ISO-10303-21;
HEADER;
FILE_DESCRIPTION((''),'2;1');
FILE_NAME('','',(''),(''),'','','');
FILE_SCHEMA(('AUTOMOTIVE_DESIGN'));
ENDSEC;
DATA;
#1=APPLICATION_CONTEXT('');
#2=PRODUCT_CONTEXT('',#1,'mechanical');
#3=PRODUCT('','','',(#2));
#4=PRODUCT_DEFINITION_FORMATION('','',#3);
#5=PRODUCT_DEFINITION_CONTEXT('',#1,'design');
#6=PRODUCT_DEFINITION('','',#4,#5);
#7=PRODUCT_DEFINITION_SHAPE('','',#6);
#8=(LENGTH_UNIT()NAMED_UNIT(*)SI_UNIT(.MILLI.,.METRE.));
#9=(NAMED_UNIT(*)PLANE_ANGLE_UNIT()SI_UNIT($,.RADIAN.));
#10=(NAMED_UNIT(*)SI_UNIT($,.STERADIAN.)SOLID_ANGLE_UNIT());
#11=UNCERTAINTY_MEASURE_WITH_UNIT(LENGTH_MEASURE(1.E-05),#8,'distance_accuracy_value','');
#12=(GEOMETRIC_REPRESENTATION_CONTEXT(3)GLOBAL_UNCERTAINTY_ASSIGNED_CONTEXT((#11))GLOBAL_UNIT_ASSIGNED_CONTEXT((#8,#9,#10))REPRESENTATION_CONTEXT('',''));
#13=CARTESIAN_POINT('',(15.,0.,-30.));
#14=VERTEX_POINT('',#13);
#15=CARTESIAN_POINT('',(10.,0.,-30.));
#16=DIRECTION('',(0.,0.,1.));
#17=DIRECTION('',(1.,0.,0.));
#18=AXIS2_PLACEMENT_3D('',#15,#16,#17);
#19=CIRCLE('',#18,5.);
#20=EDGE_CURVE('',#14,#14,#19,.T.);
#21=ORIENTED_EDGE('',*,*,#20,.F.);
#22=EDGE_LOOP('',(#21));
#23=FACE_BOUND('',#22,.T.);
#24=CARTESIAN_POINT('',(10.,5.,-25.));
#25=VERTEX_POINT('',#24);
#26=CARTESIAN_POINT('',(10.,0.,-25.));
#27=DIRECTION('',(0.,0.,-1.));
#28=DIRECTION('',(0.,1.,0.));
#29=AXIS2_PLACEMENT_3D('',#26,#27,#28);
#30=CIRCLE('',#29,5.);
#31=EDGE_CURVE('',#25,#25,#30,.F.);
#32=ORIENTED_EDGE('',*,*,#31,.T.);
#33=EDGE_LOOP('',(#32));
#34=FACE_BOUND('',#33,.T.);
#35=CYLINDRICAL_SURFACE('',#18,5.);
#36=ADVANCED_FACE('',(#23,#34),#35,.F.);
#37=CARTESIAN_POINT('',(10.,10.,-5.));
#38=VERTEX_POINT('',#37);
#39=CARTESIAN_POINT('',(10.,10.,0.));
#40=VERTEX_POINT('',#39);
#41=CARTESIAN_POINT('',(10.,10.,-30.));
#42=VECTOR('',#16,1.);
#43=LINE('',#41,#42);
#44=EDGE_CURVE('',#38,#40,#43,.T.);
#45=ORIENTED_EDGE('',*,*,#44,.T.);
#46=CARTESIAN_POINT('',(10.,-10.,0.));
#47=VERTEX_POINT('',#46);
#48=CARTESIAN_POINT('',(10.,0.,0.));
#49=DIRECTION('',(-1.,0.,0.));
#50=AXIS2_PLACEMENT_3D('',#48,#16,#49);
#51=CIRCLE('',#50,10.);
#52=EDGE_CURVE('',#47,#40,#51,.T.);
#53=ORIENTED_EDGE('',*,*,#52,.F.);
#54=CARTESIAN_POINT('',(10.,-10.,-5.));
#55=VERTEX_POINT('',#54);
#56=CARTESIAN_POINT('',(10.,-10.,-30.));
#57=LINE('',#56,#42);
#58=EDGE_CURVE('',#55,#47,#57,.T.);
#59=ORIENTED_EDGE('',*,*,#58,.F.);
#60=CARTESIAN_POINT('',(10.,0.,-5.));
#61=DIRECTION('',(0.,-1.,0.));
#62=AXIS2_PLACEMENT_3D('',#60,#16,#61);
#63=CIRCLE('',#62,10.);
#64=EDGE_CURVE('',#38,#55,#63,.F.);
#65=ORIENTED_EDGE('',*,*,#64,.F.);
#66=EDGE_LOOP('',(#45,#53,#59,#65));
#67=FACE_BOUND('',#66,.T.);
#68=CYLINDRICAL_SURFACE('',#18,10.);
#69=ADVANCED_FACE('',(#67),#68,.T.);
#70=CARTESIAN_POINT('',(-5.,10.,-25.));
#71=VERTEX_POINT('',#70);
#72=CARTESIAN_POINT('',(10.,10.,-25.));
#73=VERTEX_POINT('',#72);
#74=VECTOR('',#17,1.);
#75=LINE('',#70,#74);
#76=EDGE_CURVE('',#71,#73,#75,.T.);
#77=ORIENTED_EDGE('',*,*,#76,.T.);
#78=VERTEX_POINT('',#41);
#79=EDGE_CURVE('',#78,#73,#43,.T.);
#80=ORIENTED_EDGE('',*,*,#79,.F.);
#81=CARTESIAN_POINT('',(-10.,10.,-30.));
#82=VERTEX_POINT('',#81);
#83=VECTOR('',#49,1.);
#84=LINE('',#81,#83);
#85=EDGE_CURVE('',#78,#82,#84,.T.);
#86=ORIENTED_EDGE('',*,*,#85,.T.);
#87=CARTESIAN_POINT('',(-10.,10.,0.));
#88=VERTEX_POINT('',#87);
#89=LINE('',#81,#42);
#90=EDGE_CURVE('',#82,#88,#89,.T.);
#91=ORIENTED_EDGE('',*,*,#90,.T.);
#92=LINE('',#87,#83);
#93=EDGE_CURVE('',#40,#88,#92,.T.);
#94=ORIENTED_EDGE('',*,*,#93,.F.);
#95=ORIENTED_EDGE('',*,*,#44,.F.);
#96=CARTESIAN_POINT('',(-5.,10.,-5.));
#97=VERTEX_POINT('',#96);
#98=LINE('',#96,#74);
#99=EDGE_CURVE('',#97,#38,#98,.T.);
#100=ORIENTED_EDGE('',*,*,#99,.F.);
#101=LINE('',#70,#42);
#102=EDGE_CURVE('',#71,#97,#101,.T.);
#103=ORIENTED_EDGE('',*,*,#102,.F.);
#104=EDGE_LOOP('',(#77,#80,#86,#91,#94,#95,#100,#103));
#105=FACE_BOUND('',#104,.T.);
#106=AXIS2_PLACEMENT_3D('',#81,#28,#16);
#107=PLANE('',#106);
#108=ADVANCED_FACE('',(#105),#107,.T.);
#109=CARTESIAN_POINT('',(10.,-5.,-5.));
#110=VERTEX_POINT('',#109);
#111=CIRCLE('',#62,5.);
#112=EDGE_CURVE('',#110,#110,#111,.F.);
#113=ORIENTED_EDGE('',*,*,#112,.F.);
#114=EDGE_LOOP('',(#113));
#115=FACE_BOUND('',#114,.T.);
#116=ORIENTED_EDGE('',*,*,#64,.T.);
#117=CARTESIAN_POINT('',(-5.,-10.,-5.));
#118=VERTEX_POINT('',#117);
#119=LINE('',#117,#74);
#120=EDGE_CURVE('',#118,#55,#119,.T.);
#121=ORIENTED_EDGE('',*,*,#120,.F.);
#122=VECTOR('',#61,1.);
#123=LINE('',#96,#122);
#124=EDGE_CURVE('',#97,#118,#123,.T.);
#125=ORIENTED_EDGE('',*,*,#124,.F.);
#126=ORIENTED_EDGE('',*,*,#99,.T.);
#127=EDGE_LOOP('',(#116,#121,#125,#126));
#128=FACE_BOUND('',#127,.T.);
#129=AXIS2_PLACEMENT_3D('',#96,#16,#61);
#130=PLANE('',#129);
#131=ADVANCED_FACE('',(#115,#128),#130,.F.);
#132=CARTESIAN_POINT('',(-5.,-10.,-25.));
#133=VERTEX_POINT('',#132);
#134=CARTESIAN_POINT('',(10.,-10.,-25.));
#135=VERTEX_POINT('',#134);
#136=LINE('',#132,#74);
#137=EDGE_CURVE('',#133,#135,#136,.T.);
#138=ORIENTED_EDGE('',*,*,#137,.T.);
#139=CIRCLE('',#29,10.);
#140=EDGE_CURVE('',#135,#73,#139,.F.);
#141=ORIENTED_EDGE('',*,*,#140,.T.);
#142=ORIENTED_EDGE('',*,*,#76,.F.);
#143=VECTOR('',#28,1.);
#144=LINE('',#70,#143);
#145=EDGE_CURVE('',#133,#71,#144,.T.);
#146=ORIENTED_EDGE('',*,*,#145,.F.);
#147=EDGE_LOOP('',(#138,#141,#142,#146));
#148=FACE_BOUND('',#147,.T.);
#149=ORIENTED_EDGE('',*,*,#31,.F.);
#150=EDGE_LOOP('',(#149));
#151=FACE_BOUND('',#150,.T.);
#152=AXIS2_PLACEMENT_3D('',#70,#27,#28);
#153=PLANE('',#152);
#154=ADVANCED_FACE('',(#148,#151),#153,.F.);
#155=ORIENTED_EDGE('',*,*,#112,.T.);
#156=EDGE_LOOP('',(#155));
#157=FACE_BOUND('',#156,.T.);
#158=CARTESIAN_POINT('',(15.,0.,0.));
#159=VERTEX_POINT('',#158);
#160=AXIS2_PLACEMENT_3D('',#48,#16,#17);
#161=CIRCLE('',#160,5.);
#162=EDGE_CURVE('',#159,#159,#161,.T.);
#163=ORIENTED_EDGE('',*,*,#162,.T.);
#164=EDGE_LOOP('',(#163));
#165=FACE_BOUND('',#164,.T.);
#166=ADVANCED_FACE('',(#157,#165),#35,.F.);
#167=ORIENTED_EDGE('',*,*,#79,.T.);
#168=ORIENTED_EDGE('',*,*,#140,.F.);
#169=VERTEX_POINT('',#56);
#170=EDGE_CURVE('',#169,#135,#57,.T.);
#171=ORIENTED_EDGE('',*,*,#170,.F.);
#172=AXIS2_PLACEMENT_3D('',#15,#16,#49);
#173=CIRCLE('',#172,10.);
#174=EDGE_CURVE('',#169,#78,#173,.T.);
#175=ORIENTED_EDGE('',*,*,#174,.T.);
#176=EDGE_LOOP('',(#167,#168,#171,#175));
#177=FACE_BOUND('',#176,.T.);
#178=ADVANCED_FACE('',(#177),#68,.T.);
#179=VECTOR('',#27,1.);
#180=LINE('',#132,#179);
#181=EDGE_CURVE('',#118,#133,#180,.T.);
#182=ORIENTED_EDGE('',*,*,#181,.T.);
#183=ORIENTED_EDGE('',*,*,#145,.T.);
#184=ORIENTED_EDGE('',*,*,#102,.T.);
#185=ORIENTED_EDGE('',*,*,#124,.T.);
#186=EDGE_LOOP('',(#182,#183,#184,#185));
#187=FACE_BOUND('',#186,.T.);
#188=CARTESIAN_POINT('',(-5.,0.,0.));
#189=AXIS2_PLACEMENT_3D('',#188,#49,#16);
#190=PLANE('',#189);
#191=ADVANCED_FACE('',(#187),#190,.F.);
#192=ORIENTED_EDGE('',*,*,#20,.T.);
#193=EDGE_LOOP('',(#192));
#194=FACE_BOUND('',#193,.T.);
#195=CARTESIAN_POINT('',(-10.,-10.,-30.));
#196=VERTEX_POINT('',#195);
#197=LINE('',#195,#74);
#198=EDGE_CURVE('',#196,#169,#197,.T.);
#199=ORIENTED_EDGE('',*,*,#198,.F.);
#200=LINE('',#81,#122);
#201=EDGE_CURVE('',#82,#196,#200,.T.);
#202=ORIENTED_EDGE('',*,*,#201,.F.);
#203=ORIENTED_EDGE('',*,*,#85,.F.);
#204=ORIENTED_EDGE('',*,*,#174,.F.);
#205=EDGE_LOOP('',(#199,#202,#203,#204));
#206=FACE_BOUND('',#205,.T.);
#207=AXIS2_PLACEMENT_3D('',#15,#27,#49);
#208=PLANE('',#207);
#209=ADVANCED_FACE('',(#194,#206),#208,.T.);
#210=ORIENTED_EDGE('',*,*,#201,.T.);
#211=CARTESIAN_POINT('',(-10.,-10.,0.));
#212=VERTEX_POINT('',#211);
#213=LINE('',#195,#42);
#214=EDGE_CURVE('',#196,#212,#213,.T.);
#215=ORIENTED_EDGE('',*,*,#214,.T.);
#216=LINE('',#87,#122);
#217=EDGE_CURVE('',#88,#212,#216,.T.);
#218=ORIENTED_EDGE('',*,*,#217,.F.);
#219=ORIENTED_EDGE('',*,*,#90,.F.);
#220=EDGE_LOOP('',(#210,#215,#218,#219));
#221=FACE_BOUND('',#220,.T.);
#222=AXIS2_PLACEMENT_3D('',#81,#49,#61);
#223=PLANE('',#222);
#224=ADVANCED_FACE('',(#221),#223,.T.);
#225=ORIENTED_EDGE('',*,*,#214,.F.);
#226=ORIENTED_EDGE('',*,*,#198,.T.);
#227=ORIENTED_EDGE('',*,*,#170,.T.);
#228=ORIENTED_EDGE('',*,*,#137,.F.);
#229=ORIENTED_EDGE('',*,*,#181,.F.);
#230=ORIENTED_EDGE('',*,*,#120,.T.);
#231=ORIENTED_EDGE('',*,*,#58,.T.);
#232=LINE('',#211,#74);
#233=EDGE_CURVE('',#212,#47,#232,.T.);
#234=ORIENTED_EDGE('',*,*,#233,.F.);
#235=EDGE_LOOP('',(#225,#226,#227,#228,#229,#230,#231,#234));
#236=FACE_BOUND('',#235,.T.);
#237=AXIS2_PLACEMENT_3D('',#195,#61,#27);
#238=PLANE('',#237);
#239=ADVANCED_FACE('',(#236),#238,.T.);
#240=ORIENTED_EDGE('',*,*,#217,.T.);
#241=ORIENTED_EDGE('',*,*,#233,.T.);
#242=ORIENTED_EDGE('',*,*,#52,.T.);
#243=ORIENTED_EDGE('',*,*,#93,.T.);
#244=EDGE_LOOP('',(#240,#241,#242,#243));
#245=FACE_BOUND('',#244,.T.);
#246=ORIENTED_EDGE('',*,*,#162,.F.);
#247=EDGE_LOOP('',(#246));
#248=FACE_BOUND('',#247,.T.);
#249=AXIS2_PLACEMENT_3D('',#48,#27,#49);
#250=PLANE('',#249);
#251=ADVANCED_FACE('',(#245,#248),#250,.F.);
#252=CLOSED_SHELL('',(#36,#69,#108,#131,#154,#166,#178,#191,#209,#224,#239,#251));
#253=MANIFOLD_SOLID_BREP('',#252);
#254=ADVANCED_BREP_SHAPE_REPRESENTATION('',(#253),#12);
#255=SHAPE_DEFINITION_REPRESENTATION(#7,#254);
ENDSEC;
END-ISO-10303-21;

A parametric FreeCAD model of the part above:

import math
import FreeCAD as App
import Part
import Sketcher

doc = App.newDocument("Part")
body = doc.addObject("PartDesign::Body", "Body")

sketch1 = doc.addObject("Sketcher::SketchObject", "Sketch")
body.addObject(sketch1)
sketch1.AttachmentSupport = (doc.XY_Plane, [""])
sketch1.MapMode = "FlatFace"
sketch1.addGeometry(Part.LineSegment(App.Vector(10, 10, 0), App.Vector(-10, 10, 0)), False)
sketch1.addGeometry(Part.LineSegment(App.Vector(-10, 10, 0), App.Vector(-10, -10, 0)), False)
sketch1.addGeometry(Part.LineSegment(App.Vector(-10, -10, 0), App.Vector(10, -10, 0)), False)
sketch1.addGeometry(Part.ArcOfCircle(Part.Circle(App.Vector(10, 0, 0), App.Vector(0, 0, 1), 10), math.radians(-90), math.radians(90)), False)
sketch1.addGeometry(Part.Circle(App.Vector(10, 0, 0), App.Vector(0, 0, 1), 5), False)
sketch1.addConstraint(Sketcher.Constraint("Coincident", 0, 2, 1, 1))
sketch1.addConstraint(Sketcher.Constraint("Coincident", 1, 2, 2, 1))
sketch1.addConstraint(Sketcher.Constraint("Tangent", 2, 2, 3, 1))
sketch1.addConstraint(Sketcher.Constraint("Tangent", 3, 2, 0, 1))
sketch1.addConstraint(Sketcher.Constraint("Horizontal", 0))
sketch1.addConstraint(Sketcher.Constraint("Vertical", 1))
sketch1.addConstraint(Sketcher.Constraint("Horizontal", 2))
sketch1.addConstraint(Sketcher.Constraint("Coincident", 4, 3, 3, 3))
sketch1.addConstraint(Sketcher.Constraint("Symmetric", 0, 2, 2, 2, -1, 1))
sketch1.addConstraint(Sketcher.Constraint("Equal", 2, 1))
sketch1.addConstraint(Sketcher.Constraint("Diameter", 4, 10.0))
sketch1.addConstraint(Sketcher.Constraint("Radius", 3, 10.0))
pad1 = doc.addObject("PartDesign::Pad", "Pad")
body.addObject(pad1)
pad1.Profile = sketch1
pad1.Length = 30
pad1.Reversed = True

sketch2 = doc.addObject("Sketcher::SketchObject", "Sketch001")
body.addObject(sketch2)
sketch2.AttachmentSupport = (doc.YZ_Plane, [""])
sketch2.MapMode = "FlatFace"
sketch2.AttachmentOffset = App.Placement(App.Vector(0, 0, 20), App.Rotation())
sketch2.addGeometry(Part.LineSegment(App.Vector(10, -5, 0), App.Vector(-10, -5, 0)), False)
sketch2.addGeometry(Part.LineSegment(App.Vector(-10, -5, 0), App.Vector(-10, -25, 0)), False)
sketch2.addGeometry(Part.LineSegment(App.Vector(-10, -25, 0), App.Vector(10, -25, 0)), False)
sketch2.addGeometry(Part.LineSegment(App.Vector(10, -25, 0), App.Vector(10, -5, 0)), False)
sketch2.addConstraint(Sketcher.Constraint("Coincident", 0, 2, 1, 1))
sketch2.addConstraint(Sketcher.Constraint("Coincident", 1, 2, 2, 1))
sketch2.addConstraint(Sketcher.Constraint("Coincident", 2, 2, 3, 1))
sketch2.addConstraint(Sketcher.Constraint("Coincident", 3, 2, 0, 1))
sketch2.addConstraint(Sketcher.Constraint("Horizontal", 0))
sketch2.addConstraint(Sketcher.Constraint("Vertical", 1))
sketch2.addConstraint(Sketcher.Constraint("Horizontal", 2))
sketch2.addConstraint(Sketcher.Constraint("Vertical", 3))
sketch2.addConstraint(Sketcher.Constraint("Equal", 2, 1))
sketch2.addConstraint(Sketcher.Constraint("DistanceX", 0, 2, 0, 1, 20.0))
sketch2.addConstraint(Sketcher.Constraint("DistanceX", 0, 2, -1, 1, 10.0))
sketch2.addConstraint(Sketcher.Constraint("DistanceY", 0, 2, -1, 1, 5.0))
pocket1 = doc.addObject("PartDesign::Pocket", "Pocket")
body.addObject(pocket1)
pocket1.Profile = sketch2
pocket1.Length = 25

doc.recompute()
